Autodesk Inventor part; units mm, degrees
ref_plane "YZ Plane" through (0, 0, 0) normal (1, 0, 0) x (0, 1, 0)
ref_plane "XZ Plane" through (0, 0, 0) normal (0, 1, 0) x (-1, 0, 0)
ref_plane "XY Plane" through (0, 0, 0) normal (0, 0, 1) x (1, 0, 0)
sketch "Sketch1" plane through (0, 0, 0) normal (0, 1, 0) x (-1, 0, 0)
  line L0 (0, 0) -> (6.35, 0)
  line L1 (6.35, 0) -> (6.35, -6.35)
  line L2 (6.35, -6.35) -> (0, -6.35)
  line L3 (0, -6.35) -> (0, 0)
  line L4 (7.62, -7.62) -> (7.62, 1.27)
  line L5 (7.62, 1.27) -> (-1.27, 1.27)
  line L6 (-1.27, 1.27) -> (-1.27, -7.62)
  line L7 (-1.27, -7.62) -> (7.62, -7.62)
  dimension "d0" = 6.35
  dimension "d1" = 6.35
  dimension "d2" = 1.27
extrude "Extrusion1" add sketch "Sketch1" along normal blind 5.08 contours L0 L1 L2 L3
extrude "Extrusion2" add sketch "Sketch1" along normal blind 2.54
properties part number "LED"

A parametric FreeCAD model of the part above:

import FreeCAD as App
import Part
import Sketcher

V = App.Vector
Q = App.Units.Quantity

doc = App.newDocument("Part")
body = doc.addObject("PartDesign::Body", "Body")

sketch1 = doc.addObject("Sketcher::SketchObject", "Sketch")
body.addObject(sketch1)
sketch1.AttachmentSupport = (doc.XZ_Plane, [""])
sketch1.MapMode = "FlatFace"
sketch1.addGeometry(Part.LineSegment(V(-6.35, 0, 0), V(0, 0, 0)), False)
sketch1.addGeometry(Part.LineSegment(V(0, 0, 0), V(0, -6.35, 0)), False)
sketch1.addGeometry(Part.LineSegment(V(0, -6.35, 0), V(-6.35, -6.35, 0)), False)
sketch1.addGeometry(Part.LineSegment(V(-6.35, -6.35, 0), V(-6.35, 0, 0)), False)
sketch1.addConstraint(Sketcher.Constraint("Coincident", 0, 2, 1, 1))
sketch1.addConstraint(Sketcher.Constraint("Coincident", 1, 2, 2, 1))
sketch1.addConstraint(Sketcher.Constraint("Coincident", 2, 2, 3, 1))
sketch1.addConstraint(Sketcher.Constraint("Coincident", 3, 2, 0, 1))
sketch1.addConstraint(Sketcher.Constraint("Horizontal", 0))
sketch1.addConstraint(Sketcher.Constraint("Vertical", 1))
sketch1.addConstraint(Sketcher.Constraint("Horizontal", 2))
sketch1.addConstraint(Sketcher.Constraint("Vertical", 3))
sketch1.addConstraint(Sketcher.Constraint("Coincident", 0, 2, -1, 1))
sketch1.addConstraint(Sketcher.Constraint("Equal", 2, 1))
sketch1.addConstraint(Sketcher.Constraint("DistanceX", 0, 1, 0, 2, Q("0.25 in")))
pad1 = doc.addObject("PartDesign::Pad", "Pad")
body.addObject(pad1)
pad1.Profile = sketch1
pad1.Length = Q("0.2 in")
pad1.Reversed = True

sketch2 = doc.addObject("Sketcher::SketchObject", "Sketch001")
body.addObject(sketch2)
sketch2.AttachmentSupport = (doc.XZ_Plane, [""])
sketch2.MapMode = "FlatFace"
sketch2.addGeometry(Part.LineSegment(V(1.27, -7.62, 0), V(-7.62, -7.62, 0)), False)
sketch2.addGeometry(Part.LineSegment(V(-7.62, -7.62, 0), V(-7.62, 1.27, 0)), False)
sketch2.addGeometry(Part.LineSegment(V(-7.62, 1.27, 0), V(1.27, 1.27, 0)), False)
sketch2.addGeometry(Part.LineSegment(V(1.27, 1.27, 0), V(1.27, -7.62, 0)), False)
sketch2.addGeometry(Part.LineSegment(V(0, -6.35, 0), V(0, 0, 0)), False)
sketch2.addGeometry(Part.LineSegment(V(0, 0, 0), V(-6.35, 0, 0)), False)
sketch2.addGeometry(Part.LineSegment(V(-6.35, 0, 0), V(-6.35, -6.35, 0)), False)
sketch2.addGeometry(Part.LineSegment(V(-6.35, -6.35, 0), V(0, -6.35, 0)), False)
sketch2.addConstraint(Sketcher.Constraint("Coincident", 0, 2, 1, 1))
sketch2.addConstraint(Sketcher.Constraint("Coincident", 1, 2, 2, 1))
sketch2.addConstraint(Sketcher.Constraint("Coincident", 2, 2, 3, 1))
sketch2.addConstraint(Sketcher.Constraint("Coincident", 3, 2, 0, 1))
sketch2.addConstraint(Sketcher.Constraint("Coincident", 4, 2, 5, 1))
sketch2.addConstraint(Sketcher.Constraint("Coincident", 5, 2, 6, 1))
sketch2.addConstraint(Sketcher.Constraint("Coincident", 6, 2, 7, 1))
sketch2.addConstraint(Sketcher.Constraint("Coincident", 7, 2, 4, 1))
sketch2.addConstraint(Sketcher.Constraint("Horizontal", 0))
sketch2.addConstraint(Sketcher.Constraint("Vertical", 1))
sketch2.addConstraint(Sketcher.Constraint("Horizontal", 2))
sketch2.addConstraint(Sketcher.Constraint("Vertical", 3))
sketch2.addConstraint(Sketcher.Constraint("Vertical", 4))
sketch2.addConstraint(Sketcher.Constraint("Horizontal", 5))
sketch2.addConstraint(Sketcher.Constraint("Vertical", 6))
sketch2.addConstraint(Sketcher.Constraint("Horizontal", 7))
sketch2.addConstraint(Sketcher.Constraint("Coincident", 4, 2, -1, 1))
sketch2.addConstraint(Sketcher.Constraint("Equal", 2, 1))
sketch2.addConstraint(Sketcher.Constraint("Equal", 7, 4))
sketch2.addConstraint(Sketcher.Constraint("DistanceX", 5, 2, 5, 1, Q("0.25 in")))
sketch2.addConstraint(Sketcher.Constraint("DistanceY", -1, 1, 1, 2, Q("0.05 in")))
sketch2.addConstraint(Sketcher.Constraint("DistanceX", -1, 1, 2, 2, Q("0.05 in")))
sketch2.addConstraint(Sketcher.Constraint("DistanceX", 1, 2, 5, 2, Q("0.05 in")))
pad2 = doc.addObject("PartDesign::Pad", "Pad001")
body.addObject(pad2)
pad2.Profile = sketch2
pad2.Length = Q("0.1 in")
pad2.Reversed = True

doc.recompute()
